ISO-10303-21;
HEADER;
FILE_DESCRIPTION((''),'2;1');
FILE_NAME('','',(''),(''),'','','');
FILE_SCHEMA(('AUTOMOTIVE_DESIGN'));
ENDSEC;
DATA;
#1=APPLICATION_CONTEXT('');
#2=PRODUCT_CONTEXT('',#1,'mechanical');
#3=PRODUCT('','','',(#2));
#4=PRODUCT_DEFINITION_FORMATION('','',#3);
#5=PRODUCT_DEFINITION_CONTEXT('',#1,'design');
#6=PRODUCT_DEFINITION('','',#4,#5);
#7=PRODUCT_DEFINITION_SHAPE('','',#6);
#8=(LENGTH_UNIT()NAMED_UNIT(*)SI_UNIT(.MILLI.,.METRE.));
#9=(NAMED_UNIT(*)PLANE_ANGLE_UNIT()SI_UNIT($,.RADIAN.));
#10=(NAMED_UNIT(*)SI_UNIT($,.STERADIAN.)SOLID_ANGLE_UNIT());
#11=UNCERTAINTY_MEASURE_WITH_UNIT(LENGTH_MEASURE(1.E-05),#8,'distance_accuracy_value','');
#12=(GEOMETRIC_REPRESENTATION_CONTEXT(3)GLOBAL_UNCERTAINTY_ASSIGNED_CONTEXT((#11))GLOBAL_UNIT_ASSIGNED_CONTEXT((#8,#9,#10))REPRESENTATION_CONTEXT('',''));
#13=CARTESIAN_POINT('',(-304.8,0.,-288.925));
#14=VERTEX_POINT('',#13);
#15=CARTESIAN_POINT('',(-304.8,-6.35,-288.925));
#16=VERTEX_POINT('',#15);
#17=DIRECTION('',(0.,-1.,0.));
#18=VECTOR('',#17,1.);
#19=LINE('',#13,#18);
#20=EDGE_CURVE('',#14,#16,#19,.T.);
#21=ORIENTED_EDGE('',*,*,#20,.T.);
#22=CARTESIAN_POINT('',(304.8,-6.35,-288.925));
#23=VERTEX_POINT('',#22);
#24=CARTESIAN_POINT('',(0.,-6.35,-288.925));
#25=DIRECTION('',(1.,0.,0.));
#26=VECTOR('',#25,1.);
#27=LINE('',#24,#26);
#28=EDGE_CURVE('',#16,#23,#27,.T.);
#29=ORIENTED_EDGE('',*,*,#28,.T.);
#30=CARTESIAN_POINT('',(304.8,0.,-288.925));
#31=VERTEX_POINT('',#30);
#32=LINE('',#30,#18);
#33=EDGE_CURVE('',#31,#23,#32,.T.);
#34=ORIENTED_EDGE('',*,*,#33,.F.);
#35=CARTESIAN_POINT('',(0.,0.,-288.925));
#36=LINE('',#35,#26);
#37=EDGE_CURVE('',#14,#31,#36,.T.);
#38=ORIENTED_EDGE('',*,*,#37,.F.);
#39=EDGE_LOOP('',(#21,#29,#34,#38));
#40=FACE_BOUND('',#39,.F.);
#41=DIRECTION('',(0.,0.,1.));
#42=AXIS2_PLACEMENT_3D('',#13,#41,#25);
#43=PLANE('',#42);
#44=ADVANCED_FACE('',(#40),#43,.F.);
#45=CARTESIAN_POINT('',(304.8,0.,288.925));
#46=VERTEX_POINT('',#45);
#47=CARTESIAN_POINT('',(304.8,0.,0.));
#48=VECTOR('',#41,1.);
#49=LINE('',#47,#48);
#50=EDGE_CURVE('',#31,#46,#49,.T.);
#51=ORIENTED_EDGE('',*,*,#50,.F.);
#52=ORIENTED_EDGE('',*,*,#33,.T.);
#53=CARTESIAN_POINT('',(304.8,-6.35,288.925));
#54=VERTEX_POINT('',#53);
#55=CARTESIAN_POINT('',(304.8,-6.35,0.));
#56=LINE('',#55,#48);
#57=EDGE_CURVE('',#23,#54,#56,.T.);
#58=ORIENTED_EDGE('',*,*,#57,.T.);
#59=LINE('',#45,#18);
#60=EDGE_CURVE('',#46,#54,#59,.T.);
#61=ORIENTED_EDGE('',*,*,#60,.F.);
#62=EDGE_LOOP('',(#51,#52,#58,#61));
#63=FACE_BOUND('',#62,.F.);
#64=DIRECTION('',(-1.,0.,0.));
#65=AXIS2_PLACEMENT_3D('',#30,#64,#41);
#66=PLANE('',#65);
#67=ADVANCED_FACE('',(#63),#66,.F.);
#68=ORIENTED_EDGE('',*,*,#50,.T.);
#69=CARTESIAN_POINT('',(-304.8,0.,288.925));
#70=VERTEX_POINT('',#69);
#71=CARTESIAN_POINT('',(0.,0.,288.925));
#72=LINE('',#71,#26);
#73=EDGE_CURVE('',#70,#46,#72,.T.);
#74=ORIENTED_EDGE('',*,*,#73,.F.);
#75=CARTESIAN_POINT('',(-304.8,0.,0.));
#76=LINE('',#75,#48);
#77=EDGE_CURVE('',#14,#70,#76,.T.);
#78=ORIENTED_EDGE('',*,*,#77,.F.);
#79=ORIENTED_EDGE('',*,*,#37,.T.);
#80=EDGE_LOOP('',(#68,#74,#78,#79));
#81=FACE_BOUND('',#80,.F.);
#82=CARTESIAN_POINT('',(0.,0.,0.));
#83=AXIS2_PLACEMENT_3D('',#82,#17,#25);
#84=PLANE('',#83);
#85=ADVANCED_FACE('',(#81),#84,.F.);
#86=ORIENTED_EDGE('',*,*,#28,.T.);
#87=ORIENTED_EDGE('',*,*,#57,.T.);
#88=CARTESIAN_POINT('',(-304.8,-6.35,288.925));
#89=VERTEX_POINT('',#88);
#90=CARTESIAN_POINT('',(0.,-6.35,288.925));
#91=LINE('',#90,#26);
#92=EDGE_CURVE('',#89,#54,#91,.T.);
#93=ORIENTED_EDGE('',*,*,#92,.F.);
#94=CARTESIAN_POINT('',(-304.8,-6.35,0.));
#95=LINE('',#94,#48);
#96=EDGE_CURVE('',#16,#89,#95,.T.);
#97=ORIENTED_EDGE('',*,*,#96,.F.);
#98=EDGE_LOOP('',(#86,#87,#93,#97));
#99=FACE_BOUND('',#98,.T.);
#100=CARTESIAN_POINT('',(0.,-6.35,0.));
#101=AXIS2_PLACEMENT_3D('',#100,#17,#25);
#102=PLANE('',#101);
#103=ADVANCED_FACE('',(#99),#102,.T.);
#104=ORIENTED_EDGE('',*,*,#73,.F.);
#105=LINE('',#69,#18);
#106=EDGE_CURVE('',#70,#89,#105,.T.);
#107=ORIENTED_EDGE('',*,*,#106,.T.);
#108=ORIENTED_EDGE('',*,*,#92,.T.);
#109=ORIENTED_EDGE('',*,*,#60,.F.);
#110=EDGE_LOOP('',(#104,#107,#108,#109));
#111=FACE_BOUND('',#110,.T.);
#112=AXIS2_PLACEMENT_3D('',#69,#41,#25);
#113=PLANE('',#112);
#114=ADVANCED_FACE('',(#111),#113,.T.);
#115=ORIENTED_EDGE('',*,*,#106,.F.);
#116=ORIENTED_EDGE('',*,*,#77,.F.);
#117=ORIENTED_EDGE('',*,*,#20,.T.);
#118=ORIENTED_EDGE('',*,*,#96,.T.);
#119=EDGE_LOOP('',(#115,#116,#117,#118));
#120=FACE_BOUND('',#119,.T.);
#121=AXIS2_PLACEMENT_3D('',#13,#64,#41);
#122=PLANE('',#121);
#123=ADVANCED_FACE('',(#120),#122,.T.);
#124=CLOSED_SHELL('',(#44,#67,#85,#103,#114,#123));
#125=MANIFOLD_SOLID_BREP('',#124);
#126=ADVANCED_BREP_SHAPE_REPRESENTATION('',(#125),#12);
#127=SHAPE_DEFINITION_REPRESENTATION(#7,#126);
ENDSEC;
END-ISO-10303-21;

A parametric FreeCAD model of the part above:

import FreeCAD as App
import Part
import Sketcher
Q = App.Units.Quantity


def add_polygon(sketch, points):
    """Adds a closed chain of lines whose ends are joined by coincident constraints."""
    first, n = sketch.GeometryCount, len(points)
    for a, b in zip(points, points[1:] + points[:1]):
        sketch.addGeometry(Part.LineSegment(App.Vector(*a, 0), App.Vector(*b, 0)), False)
    for i in range(n):
        sketch.addConstraint(Sketcher.Constraint("Coincident", first + i, 2, first + (i + 1) % n, 1))

doc = App.newDocument("Part")
body = doc.addObject("PartDesign::Body", "Body")

sketch1 = body.newObject("Sketcher::SketchObject", "Sketch")
sketch1.AttachmentSupport = (doc.getObject("XZ_Plane"), [""])
sketch1.MapMode = "FlatFace"
add_polygon(sketch1, [(-305, 289), (-305, -289), (305, -289), (305, 289)])
sketch1.addConstraint([
    Sketcher.Constraint("Vertical", 0),
    Sketcher.Constraint("Horizontal", 1),
    Sketcher.Constraint("Vertical", 2),
    Sketcher.Constraint("Horizontal", 3),
    Sketcher.Constraint("Symmetric", 0, 2, 2, 2, -1, 1),
    Sketcher.Constraint("DistanceX", 1, 1, 1, 2, Q("24 in")),
    Sketcher.Constraint("DistanceY", 0, 2, 0, 1, Q("22.75 in")),
])
pad1 = body.newObject("PartDesign::Pad", "Pad")
pad1.Profile = sketch1
pad1.Length = Q("0.25 in")

doc.recompute()
